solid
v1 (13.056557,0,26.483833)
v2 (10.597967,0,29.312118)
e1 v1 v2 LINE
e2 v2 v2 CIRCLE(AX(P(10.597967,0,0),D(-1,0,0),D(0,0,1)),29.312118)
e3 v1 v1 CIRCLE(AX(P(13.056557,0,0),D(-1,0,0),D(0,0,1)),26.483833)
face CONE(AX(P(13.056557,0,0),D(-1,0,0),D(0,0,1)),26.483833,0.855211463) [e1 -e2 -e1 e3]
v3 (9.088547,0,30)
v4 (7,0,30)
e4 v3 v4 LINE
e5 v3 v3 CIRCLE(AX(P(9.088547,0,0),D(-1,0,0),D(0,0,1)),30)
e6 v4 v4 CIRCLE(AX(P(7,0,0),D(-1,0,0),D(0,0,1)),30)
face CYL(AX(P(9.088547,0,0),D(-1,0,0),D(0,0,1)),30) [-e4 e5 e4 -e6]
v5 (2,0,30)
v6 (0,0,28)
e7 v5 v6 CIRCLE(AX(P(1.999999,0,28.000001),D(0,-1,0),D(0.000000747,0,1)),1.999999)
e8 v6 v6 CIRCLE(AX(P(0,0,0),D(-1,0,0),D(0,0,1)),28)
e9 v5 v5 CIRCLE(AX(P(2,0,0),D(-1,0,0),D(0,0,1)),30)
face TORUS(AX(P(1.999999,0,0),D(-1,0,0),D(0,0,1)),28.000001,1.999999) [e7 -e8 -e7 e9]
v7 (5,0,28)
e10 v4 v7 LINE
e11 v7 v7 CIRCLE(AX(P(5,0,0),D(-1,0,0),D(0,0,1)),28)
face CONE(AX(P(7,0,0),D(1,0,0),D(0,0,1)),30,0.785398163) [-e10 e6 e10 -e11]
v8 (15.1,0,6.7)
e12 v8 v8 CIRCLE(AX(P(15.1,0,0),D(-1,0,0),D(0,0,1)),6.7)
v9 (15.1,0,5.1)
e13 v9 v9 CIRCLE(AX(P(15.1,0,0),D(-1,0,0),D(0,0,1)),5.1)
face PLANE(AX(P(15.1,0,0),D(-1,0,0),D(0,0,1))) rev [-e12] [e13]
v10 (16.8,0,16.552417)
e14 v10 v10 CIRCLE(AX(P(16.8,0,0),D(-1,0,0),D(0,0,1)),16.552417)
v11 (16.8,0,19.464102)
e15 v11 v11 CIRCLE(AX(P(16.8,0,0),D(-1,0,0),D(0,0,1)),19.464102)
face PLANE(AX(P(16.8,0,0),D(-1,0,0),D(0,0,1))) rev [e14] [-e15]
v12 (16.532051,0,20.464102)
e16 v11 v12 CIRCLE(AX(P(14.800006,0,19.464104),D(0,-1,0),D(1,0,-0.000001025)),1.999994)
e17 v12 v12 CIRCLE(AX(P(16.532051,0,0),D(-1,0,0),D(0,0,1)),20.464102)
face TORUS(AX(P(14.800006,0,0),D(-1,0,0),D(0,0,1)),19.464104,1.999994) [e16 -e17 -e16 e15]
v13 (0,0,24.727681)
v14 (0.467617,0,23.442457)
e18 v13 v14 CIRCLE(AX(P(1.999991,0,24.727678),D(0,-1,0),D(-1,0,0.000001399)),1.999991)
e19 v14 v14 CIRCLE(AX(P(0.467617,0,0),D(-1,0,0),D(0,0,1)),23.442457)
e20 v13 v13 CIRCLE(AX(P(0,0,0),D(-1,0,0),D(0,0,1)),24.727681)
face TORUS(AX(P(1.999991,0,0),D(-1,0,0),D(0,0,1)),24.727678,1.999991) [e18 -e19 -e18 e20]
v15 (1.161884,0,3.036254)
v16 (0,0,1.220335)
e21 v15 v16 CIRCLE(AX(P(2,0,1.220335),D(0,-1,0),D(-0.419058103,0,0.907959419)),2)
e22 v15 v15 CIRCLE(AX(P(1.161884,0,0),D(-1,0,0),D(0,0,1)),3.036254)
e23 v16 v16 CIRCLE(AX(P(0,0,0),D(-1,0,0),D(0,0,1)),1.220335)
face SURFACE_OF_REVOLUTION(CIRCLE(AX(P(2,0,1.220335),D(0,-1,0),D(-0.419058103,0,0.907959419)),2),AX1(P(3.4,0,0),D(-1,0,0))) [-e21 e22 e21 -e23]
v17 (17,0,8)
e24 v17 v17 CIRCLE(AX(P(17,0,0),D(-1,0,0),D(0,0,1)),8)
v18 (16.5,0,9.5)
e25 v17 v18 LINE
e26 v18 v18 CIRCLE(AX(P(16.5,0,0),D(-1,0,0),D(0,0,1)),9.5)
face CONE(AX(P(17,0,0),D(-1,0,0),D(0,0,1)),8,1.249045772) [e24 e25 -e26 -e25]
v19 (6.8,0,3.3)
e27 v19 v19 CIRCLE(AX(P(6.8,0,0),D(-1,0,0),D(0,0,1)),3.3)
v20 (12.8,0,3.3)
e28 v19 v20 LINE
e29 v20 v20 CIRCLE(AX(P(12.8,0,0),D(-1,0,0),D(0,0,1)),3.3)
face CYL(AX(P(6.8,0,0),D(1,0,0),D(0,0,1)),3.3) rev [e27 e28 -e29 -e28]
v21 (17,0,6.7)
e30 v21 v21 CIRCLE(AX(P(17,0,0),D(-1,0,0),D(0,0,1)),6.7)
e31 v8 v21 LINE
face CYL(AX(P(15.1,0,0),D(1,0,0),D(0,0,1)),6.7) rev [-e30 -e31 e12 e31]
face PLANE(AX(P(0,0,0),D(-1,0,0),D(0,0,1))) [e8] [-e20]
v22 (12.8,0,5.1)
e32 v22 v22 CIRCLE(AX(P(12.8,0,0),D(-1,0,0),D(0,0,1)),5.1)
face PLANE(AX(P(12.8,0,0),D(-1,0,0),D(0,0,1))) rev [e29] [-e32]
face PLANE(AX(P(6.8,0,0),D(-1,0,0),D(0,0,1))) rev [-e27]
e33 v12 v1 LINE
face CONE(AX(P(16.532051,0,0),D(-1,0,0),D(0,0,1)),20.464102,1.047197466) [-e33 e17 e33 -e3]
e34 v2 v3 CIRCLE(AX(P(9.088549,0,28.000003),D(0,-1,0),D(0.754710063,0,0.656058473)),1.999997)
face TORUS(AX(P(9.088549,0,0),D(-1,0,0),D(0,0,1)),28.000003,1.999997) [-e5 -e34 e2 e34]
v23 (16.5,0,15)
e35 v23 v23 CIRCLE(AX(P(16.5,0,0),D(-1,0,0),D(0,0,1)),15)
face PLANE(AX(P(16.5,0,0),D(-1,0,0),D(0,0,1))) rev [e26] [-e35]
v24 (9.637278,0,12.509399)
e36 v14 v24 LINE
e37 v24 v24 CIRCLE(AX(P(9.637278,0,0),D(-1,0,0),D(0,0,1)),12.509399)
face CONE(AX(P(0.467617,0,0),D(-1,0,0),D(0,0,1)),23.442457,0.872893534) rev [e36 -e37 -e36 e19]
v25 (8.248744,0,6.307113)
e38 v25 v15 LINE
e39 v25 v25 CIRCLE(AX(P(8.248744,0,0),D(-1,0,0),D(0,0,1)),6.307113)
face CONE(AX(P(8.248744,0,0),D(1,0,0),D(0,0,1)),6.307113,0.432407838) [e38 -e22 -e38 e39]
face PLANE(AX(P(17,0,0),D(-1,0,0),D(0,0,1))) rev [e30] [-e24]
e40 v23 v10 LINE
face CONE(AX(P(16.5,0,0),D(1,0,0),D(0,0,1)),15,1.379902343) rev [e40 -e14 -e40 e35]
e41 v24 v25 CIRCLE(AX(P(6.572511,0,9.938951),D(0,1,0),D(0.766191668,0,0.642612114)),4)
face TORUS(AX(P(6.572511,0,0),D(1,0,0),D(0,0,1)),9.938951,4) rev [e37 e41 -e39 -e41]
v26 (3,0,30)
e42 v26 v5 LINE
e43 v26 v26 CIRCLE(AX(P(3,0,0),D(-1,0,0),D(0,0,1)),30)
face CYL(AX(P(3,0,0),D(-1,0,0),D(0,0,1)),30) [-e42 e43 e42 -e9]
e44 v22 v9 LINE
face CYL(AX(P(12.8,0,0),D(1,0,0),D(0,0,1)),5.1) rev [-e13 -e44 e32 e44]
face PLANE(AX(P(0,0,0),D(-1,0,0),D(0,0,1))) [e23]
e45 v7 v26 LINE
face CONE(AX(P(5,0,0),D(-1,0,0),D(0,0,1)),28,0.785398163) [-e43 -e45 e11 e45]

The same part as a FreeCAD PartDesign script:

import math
import FreeCAD as App
import Part
import Sketcher

V = App.Vector
Q = App.Units.Quantity

doc = App.newDocument("Part")
body = doc.addObject("PartDesign::Body", "Body")

# Sketch on XZ plane
sketch1 = body.newObject("Sketcher::SketchObject", "Sketch")
sketch1.AttachmentSupport = (doc.getObject("XZ_Plane"), [""])
sketch1.MapMode = "FlatFace"
sketch1.addGeometry([
    Part.LineSegment(V(0, 1.220335, 0), V(0, 0, 0)),  # 0
    Part.LineSegment(V(0, 0, 0), V(6.8, 0, 0)),  # 1
    Part.LineSegment(V(6.8, 0, 0), V(6.8, 3.3, 0)),  # 2
    Part.LineSegment(V(6.8, 3.3, 0), V(12.8, 3.3, 0)),  # 3
    Part.LineSegment(V(12.8, 3.3, 0), V(12.8, 5.1, 0)),  # 4
    Part.LineSegment(V(12.8, 5.1, 0), V(15.1, 5.1, 0)),  # 5
    Part.LineSegment(V(15.1, 5.1, 0), V(15.1, 6.7, 0)),  # 6
    Part.LineSegment(V(15.1, 6.7, 0), V(17, 6.7, 0)),  # 7
    Part.LineSegment(V(17, 6.7, 0), V(17, 8, 0)),  # 8
    Part.LineSegment(V(17, 8, 0), V(16.5, 9.5, 0)),  # 9
    Part.LineSegment(V(16.5, 9.5, 0), V(16.5, 15, 0)),  # 10
    Part.LineSegment(V(16.5, 15, 0), V(16.8, 16.552417, 0)),  # 11
    Part.LineSegment(V(16.8, 16.552417, 0), V(16.8, 19.464102, 0)),  # 12
    Part.ArcOfCircle(Part.Circle(V(14.800006, 19.464104, 0), V(0, 0, 1), 1.999994), math.radians(-0.000059), math.radians(30.000038)),  # 13
    Part.LineSegment(V(16.532051, 20.464102, 0), V(13.056557, 26.483833, 0)),  # 14
    Part.LineSegment(V(13.056557, 26.483833, 0), V(10.597967, 29.312118, 0)),  # 15
    Part.ArcOfCircle(Part.Circle(V(9.088549, 28.000003, 0), V(0, 0, 1), 1.999997), math.radians(40.999958), math.radians(90.000063)),  # 16
    Part.LineSegment(V(9.088547, 30, 0), V(7, 30, 0)),  # 17
    Part.LineSegment(V(7, 30, 0), V(5, 28, 0)),  # 18
    Part.LineSegment(V(5, 28, 0), V(3, 30, 0)),  # 19
    Part.LineSegment(V(3, 30, 0), V(2, 30, 0)),  # 20
    Part.ArcOfCircle(Part.Circle(V(1.999999, 28.000001, 0), V(0, 0, 1), 1.999999), math.radians(89.999957), math.radians(180.000043)),  # 21
    Part.LineSegment(V(0, 28, 0), V(0, 24.727681, 0)),  # 22
    Part.ArcOfCircle(Part.Circle(V(1.999991, 24.727678, 0), V(0, 0, 1), 1.999991), math.radians(179.99992), math.radians(219.986988)),  # 23
    Part.LineSegment(V(0.467617, 23.442457, 0), V(9.637278, 12.509399, 0)),  # 24
    Part.ArcOfCircle(Part.Circle(V(6.572511, 9.938951, 0), V(0, 0, 1), 4), math.radians(-65.22486), math.radians(39.986875)),  # 25
    Part.LineSegment(V(8.248744, 6.307113, 0), V(1.161884, 3.036254, 0)),  # 26
    Part.ArcOfCircle(Part.Circle(V(2, 1.220335, 0), V(0, 0, 1), 2), math.radians(114.775136), math.radians(179.999995)),  # 27
], False)
sketch1.addConstraint([
    Sketcher.Constraint("Coincident", 0, 2, 1, 1),
    Sketcher.Constraint("Coincident", 1, 2, 2, 1),
    Sketcher.Constraint("Coincident", 2, 2, 3, 1),
    Sketcher.Constraint("Coincident", 3, 2, 4, 1),
    Sketcher.Constraint("Coincident", 4, 2, 5, 1),
    Sketcher.Constraint("Coincident", 5, 2, 6, 1),
    Sketcher.Constraint("Coincident", 6, 2, 7, 1),
    Sketcher.Constraint("Coincident", 7, 2, 8, 1),
    Sketcher.Constraint("Coincident", 8, 2, 9, 1),
    Sketcher.Constraint("Coincident", 9, 2, 10, 1),
    Sketcher.Constraint("Coincident", 10, 2, 11, 1),
    Sketcher.Constraint("Coincident", 11, 2, 12, 1),
    Sketcher.Constraint("Tangent", 12, 2, 13, 1),
    Sketcher.Constraint("Tangent", 13, 2, 14, 1),
    Sketcher.Constraint("Coincident", 14, 2, 15, 1),
    Sketcher.Constraint("Tangent", 15, 2, 16, 1),
    Sketcher.Constraint("Tangent", 16, 2, 17, 1),
    Sketcher.Constraint("Coincident", 17, 2, 18, 1),
    Sketcher.Constraint("Coincident", 18, 2, 19, 1),
    Sketcher.Constraint("Coincident", 19, 2, 20, 1),
    Sketcher.Constraint("Tangent", 20, 2, 21, 1),
    Sketcher.Constraint("Tangent", 21, 2, 22, 1),
    Sketcher.Constraint("Tangent", 22, 2, 23, 1),
    Sketcher.Constraint("Tangent", 23, 2, 24, 1),
    Sketcher.Constraint("Tangent", 24, 2, 25, 2),
    Sketcher.Constraint("Tangent", 25, 1, 26, 1),
    Sketcher.Constraint("Tangent", 26, 2, 27, 1),
    Sketcher.Constraint("Tangent", 27, 2, 0, 1),
    Sketcher.Constraint("Vertical", 0),
    Sketcher.Constraint("Horizontal", 1),
    Sketcher.Constraint("Vertical", 2),
    Sketcher.Constraint("Horizontal", 3),
    Sketcher.Constraint("Vertical", 4),
    Sketcher.Constraint("Horizontal", 5),
    Sketcher.Constraint("Vertical", 6),
    Sketcher.Constraint("Horizontal", 7),
    Sketcher.Constraint("Vertical", 8),
    Sketcher.Constraint("Vertical", 10),
    Sketcher.Constraint("Vertical", 12),
    Sketcher.Constraint("Horizontal", 17),
    Sketcher.Constraint("Horizontal", 20),
    Sketcher.Constraint("Vertical", 22),
    Sketcher.Constraint("Coincident", 0, 2, -1, 1),
    Sketcher.Constraint("Equal", 16, 21),
    Sketcher.Constraint("Equal", 21, 27),
    Sketcher.Constraint("PointOnObject", 21, 2, -2),
    Sketcher.Constraint("Perpendicular", 18, 19),
    Sketcher.Constraint("Horizontal", 16, 3, 21, 3),
    Sketcher.Constraint("Horizontal", 21, 3, 18, 2),
    Sketcher.Constraint("Equal", 9, 11),
    Sketcher.Constraint("Equal", 18, 19),
    Sketcher.Constraint("Radius", 21, Q("1.999999 mm")),
    Sketcher.Constraint("Radius", 25, Q("4 mm")),
    Sketcher.Constraint("DistanceX", 3, 1, 3, 2, Q("6 mm")),
    Sketcher.Constraint("DistanceX", 20, 2, 20, 1, Q("1 mm")),
    Sketcher.Constraint("Angle", 14, Q("120.000005 deg")),
    Sketcher.Constraint("Angle", 15, Q("130.999993 deg")),
    Sketcher.Constraint("DistanceX", 1, 1, 1, 2, Q("6.8 mm")),
    Sketcher.Constraint("DistanceX", 5, 1, 5, 2, Q("2.3 mm")),
    Sketcher.Constraint("DistanceX", 7, 1, 7, 2, Q("1.9 mm")),
    Sketcher.Constraint("DistanceY", 2, 1, 2, 2, Q("3.3 mm")),
    Sketcher.Constraint("DistanceY", 4, 1, 4, 2, Q("1.8 mm")),
    Sketcher.Constraint("DistanceY", 6, 1, 6, 2, Q("1.6 mm")),
    Sketcher.Constraint("DistanceY", 8, 1, 8, 2, Q("1.3 mm")),
    Sketcher.Constraint("DistanceY", 10, 1, 10, 2, Q("5.5 mm")),
    Sketcher.Constraint("DistanceY", -1, 1, 21, 3, Q("28.000001 mm")),
    Sketcher.Constraint("DistanceY", -1, 1, 10, 2, Q("15 mm")),
    Sketcher.Constraint("DistanceY", 12, 2, 13, 2, Q("1 mm")),
    Sketcher.Constraint("DistanceX", -1, 1, 9, 2, Q("16.5 mm")),
    Sketcher.Constraint("DistanceX", -1, 1, 11, 2, Q("16.8 mm")),
    Sketcher.Constraint("Radius", 23, Q("1.999991 mm")),
    Sketcher.Constraint("DistanceY", 22, 2, 22, 1, Q("3.272319 mm")),
    Sketcher.Constraint("DistanceY", -1, 1, 24, 2, Q("12.509399 mm")),
    Sketcher.Constraint("DistanceY", 13, 3, 16, 3, Q("8.535899 mm")),
    Sketcher.Constraint("DistanceX", 16, 3, 13, 2, Q("7.443502 mm")),
    Sketcher.Constraint("Distance", 26, Q("7.805261 mm")),
    Sketcher.Constraint("DistanceY", 0, 2, 0, 1, Q("1.220335 mm")),
])
revolution = body.newObject("PartDesign::Revolution", "Revolution")
revolution.Profile = sketch1
revolution.ReferenceAxis = (sketch1, ["H_Axis"])
revolution.Angle = 360

doc.recompute()
